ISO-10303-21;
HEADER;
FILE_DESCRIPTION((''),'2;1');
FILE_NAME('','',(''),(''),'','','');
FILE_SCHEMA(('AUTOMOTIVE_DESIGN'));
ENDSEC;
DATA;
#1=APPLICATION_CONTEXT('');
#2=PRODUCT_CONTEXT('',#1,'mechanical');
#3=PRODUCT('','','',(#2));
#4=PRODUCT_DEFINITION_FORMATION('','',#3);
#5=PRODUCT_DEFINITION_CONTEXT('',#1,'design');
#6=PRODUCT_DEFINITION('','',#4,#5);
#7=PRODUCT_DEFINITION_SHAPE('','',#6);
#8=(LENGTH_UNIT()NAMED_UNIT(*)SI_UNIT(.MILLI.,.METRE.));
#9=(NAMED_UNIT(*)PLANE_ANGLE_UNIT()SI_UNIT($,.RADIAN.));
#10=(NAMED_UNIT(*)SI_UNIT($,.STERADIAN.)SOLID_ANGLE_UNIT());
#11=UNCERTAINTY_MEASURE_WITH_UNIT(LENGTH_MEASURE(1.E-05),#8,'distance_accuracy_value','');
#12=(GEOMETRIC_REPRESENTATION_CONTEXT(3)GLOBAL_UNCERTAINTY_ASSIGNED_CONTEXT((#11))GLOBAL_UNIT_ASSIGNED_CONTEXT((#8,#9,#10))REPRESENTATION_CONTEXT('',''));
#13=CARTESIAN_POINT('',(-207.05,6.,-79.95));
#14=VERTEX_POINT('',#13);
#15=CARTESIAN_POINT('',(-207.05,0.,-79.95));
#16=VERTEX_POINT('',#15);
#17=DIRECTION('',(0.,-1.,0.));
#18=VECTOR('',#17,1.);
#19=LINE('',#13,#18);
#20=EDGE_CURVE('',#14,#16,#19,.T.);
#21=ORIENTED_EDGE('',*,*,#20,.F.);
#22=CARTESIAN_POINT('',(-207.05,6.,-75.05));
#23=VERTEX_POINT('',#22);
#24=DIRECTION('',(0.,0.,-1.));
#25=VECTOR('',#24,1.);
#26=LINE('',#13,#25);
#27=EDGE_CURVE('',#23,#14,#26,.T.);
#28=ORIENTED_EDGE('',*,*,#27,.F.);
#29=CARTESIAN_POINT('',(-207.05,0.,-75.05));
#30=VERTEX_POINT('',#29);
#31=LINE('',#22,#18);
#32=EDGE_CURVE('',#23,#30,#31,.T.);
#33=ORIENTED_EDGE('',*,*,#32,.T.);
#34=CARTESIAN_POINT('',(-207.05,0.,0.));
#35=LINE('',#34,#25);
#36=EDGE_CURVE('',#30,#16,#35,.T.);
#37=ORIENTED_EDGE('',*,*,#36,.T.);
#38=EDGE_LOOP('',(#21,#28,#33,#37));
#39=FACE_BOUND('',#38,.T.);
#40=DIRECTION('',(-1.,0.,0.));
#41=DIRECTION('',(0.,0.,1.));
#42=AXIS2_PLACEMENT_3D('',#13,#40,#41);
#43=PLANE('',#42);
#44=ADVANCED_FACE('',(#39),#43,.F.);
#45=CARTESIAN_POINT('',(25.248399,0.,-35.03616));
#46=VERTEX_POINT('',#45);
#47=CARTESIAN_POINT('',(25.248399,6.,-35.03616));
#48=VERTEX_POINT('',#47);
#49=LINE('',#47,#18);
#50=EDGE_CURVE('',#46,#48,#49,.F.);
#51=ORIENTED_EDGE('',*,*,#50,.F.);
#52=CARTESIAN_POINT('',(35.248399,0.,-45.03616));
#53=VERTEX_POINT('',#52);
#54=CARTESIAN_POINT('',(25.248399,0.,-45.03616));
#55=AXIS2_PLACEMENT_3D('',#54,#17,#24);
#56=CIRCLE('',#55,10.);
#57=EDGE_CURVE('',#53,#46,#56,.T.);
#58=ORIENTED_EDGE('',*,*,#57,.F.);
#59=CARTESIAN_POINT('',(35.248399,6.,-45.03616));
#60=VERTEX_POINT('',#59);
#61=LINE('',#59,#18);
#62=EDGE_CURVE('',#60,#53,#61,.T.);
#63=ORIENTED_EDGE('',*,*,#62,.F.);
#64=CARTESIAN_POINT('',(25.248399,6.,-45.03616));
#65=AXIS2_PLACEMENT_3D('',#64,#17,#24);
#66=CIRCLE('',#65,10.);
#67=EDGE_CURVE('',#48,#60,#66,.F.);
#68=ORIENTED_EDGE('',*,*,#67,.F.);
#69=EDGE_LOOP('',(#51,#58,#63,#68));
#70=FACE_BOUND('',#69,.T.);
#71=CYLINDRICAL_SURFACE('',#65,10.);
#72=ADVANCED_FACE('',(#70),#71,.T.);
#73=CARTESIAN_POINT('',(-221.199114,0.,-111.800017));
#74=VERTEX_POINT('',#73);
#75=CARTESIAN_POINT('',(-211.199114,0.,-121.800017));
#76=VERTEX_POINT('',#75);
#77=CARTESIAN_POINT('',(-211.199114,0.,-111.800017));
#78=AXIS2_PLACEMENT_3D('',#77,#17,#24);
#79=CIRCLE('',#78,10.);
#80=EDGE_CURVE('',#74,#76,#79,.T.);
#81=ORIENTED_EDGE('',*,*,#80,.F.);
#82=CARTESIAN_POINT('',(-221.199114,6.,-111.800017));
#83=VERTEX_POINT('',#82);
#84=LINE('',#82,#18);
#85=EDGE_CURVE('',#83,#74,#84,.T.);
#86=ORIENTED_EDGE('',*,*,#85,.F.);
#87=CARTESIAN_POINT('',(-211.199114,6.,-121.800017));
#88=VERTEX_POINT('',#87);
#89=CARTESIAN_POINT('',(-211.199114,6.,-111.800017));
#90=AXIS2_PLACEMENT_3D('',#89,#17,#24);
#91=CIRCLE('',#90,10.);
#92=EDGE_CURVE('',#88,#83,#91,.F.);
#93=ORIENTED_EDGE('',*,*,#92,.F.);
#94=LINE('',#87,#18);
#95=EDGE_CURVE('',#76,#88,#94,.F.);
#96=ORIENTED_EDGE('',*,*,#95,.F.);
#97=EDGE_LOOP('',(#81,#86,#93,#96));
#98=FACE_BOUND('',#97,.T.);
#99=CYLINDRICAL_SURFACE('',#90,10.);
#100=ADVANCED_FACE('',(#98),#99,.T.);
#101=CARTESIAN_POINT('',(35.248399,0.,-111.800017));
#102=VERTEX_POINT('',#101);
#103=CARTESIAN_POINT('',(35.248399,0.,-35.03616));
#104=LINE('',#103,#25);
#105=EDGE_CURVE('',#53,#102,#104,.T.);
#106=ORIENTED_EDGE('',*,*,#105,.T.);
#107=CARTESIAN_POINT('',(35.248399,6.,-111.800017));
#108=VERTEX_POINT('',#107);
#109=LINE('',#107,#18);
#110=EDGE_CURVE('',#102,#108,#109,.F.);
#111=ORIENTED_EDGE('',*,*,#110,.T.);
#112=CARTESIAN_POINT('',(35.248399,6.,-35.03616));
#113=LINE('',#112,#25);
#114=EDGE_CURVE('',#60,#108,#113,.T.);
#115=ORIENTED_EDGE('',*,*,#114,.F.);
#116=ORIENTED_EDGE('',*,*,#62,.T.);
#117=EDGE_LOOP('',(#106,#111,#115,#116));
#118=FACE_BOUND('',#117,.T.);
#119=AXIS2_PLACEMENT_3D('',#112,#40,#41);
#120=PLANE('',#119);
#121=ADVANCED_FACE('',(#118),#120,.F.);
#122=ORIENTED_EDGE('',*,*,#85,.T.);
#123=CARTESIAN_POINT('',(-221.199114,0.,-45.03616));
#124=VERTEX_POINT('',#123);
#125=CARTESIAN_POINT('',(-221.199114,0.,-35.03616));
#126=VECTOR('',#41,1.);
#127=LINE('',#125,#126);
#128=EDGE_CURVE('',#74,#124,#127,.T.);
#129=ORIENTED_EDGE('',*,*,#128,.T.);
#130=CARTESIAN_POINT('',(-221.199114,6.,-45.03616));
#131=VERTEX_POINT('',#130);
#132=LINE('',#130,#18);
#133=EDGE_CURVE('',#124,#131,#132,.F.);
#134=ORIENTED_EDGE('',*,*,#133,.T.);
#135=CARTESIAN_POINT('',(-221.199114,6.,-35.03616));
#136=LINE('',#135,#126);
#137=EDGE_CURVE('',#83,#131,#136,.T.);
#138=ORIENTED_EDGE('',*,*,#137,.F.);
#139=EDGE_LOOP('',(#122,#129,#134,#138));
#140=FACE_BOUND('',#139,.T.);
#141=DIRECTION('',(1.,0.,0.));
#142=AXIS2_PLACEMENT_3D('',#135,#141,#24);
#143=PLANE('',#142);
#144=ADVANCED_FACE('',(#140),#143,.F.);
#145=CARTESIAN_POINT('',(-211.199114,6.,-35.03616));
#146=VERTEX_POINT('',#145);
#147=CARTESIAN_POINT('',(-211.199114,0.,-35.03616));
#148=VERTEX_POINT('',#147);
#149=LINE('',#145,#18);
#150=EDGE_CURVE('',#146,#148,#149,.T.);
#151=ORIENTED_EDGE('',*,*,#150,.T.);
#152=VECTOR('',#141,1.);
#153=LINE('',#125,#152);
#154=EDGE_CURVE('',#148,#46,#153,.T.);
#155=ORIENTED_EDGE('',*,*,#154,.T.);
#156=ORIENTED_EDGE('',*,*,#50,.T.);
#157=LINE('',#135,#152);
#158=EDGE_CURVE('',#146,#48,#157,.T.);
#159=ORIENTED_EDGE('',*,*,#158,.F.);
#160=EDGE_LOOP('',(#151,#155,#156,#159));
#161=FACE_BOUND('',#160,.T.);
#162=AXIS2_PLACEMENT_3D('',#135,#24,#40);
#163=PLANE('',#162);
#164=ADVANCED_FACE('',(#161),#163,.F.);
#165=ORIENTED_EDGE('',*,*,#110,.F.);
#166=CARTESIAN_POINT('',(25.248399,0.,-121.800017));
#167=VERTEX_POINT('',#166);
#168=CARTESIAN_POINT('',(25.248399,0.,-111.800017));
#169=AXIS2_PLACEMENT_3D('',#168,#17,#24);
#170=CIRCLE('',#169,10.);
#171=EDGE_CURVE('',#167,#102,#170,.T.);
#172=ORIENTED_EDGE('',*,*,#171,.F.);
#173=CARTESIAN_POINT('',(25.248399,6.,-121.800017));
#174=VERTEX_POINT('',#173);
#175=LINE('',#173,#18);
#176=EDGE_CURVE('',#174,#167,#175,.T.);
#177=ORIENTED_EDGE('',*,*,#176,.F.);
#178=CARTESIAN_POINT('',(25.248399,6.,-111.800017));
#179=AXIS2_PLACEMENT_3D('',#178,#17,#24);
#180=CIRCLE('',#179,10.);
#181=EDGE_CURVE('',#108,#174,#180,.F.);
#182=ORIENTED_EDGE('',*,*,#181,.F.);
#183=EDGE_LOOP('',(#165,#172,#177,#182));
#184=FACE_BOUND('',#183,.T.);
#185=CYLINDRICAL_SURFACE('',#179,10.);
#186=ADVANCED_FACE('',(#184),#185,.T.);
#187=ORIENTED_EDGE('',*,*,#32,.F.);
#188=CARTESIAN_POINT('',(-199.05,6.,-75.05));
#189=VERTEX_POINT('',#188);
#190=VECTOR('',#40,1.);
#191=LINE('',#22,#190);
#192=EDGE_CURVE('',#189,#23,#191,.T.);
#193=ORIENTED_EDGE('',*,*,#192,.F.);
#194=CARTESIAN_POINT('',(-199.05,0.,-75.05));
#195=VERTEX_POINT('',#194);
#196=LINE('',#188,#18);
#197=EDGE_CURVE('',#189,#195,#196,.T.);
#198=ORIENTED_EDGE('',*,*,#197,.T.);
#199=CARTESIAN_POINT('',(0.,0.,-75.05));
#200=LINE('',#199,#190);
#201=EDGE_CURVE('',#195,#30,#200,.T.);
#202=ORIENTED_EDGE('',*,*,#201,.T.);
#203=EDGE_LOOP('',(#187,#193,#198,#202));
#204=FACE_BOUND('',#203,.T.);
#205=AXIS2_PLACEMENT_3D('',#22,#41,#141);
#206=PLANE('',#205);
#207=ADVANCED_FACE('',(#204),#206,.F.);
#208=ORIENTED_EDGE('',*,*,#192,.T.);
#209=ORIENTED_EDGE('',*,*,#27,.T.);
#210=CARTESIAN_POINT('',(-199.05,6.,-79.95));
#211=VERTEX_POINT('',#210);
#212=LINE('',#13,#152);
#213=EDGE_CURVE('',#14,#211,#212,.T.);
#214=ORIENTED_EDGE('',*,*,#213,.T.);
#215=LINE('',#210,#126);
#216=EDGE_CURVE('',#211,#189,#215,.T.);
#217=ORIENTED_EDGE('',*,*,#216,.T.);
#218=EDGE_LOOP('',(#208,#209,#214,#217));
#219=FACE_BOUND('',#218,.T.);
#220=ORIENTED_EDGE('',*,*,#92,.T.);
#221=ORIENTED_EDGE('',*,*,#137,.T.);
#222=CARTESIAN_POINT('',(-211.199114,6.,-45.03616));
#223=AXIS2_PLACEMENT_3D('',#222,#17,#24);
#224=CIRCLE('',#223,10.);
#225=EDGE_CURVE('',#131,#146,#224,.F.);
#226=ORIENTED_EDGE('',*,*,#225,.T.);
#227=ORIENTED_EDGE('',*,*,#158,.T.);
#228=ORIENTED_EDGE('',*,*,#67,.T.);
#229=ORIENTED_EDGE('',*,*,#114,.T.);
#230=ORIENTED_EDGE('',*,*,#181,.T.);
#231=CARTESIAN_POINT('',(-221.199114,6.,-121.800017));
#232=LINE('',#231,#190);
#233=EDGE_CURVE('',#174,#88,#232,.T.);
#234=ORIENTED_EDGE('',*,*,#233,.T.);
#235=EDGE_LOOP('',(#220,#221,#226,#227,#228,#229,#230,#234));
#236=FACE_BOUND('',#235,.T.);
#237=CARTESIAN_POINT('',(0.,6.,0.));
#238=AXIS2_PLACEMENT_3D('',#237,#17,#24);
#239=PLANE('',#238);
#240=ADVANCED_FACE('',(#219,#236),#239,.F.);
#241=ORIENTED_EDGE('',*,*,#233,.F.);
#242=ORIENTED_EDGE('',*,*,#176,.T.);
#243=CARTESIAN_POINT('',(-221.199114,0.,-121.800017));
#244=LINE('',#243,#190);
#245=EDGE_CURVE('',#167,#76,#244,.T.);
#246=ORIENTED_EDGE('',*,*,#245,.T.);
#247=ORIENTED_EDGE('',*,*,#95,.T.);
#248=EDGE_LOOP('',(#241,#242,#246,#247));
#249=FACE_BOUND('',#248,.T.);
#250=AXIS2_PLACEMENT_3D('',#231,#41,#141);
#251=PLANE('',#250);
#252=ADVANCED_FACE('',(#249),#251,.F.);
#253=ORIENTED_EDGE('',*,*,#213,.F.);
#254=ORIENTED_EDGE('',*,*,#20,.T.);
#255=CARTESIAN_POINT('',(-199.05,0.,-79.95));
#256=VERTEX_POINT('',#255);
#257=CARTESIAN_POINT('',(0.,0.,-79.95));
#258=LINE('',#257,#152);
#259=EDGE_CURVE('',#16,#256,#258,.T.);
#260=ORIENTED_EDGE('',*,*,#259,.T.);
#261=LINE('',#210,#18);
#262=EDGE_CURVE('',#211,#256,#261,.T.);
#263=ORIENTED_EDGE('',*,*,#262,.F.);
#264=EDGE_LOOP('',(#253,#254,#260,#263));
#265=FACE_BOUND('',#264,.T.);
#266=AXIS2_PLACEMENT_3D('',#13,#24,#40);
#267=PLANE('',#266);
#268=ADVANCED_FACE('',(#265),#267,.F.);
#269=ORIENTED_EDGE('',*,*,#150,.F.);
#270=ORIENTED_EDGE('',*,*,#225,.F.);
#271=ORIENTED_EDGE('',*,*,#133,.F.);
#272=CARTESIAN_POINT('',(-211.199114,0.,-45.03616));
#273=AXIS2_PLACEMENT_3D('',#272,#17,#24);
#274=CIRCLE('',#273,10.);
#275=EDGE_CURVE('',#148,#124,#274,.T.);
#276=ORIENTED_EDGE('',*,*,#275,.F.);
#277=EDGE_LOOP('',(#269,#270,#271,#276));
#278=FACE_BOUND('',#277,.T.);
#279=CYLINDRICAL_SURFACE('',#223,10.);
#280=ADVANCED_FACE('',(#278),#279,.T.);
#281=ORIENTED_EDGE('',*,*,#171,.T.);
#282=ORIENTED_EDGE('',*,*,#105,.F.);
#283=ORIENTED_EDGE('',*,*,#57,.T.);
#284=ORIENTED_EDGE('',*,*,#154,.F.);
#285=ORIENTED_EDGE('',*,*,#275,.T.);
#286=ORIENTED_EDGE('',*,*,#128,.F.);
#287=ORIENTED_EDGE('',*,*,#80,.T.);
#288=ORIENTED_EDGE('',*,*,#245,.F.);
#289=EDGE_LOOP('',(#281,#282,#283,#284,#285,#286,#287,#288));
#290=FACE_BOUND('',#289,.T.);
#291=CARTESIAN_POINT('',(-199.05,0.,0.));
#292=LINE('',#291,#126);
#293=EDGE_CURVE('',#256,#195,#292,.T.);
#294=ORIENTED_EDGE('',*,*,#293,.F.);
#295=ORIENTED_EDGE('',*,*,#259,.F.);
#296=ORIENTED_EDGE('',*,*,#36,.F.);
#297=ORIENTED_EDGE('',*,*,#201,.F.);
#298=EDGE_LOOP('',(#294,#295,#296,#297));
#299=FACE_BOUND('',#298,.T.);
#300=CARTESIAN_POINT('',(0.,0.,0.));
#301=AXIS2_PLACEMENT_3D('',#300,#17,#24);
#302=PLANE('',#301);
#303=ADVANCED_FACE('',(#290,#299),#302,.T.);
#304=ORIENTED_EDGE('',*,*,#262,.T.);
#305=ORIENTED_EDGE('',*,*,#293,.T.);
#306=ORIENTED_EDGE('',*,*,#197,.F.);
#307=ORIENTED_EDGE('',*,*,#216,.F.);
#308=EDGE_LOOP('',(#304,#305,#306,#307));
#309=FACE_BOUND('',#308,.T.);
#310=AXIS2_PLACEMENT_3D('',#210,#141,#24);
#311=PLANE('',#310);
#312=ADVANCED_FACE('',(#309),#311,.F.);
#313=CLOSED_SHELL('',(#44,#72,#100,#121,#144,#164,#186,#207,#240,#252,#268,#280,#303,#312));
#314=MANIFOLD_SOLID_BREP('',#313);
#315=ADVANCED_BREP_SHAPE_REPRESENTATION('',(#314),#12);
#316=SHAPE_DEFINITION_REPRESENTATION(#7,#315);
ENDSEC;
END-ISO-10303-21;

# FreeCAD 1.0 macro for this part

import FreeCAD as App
import Part
import Sketcher

V = App.Vector
Q = App.Units.Quantity


def edges_at(feature, points):
    """Names of the edges that pass closest to the given points."""
    edges = feature.Shape.Edges
    near = lambda p: min(range(len(edges)), key=lambda i: edges[i].distToShape(Part.Vertex(*p))[0])
    return sorted({f"Edge{near(p) + 1}" for p in points})

doc = App.newDocument("Part")
params = doc.addObject("Spreadsheet::Sheet", "Params")
for row, (alias, value) in enumerate([
    ("pad1_length", "6 mm"),
    ("sketch2_width", "8 mm"),
    ("sketch2_height", "4.9 mm"),
    ("fillet_radius", "10 mm"),
], start=1):
    params.set(f"A{row}", alias)
    params.set(f"B{row}", "=" + value)
    params.setAlias(f"B{row}", alias)

body = doc.addObject("PartDesign::Body", "Body")

sketch1 = body.newObject("Sketcher::SketchObject", "Sketch")
sketch1.AttachmentSupport = (doc.getObject("XZ_Plane"), [""])
sketch1.MapMode = "FlatFace"
sketch1.addGeometry([
    Part.LineSegment(V(-221.199114, -121.800017, 0), V(-221.199114, -35.03616, 0)),
    Part.LineSegment(V(-221.199114, -35.03616, 0), V(35.248399, -35.03616, 0)),
    Part.LineSegment(V(35.248399, -35.03616, 0), V(35.248399, -121.800017, 0)),
    Part.LineSegment(V(35.248399, -121.800017, 0), V(-221.199114, -121.800017, 0)),
], False)
sketch1.addConstraint([
    Sketcher.Constraint("Coincident", 0, 2, 1, 1),
    Sketcher.Constraint("Coincident", 1, 2, 2, 1),
    Sketcher.Constraint("Coincident", 2, 2, 3, 1),
    Sketcher.Constraint("Coincident", 3, 2, 0, 1),
    Sketcher.Constraint("Vertical", 0),
    Sketcher.Constraint("Horizontal", 1),
    Sketcher.Constraint("Vertical", 2),
    Sketcher.Constraint("Horizontal", 3),
    Sketcher.Constraint("DistanceX", -1, 1, 1, 2, Q("35.248399 mm")),
    Sketcher.Constraint("DistanceX", 1, 1, 1, 2, Q("256.447513 mm")),
    Sketcher.Constraint("DistanceY", 0, 1, 0, 2, Q("86.763856 mm")),
    Sketcher.Constraint("DistanceY", 0, 2, -1, 1, Q("35.03616 mm")),
])
pad1 = body.newObject("PartDesign::Pad", "Pad")
pad1.Profile = sketch1
pad1.setExpression("Length", "Params.pad1_length")
pad1.Reversed = True

sketch2 = body.newObject("Sketcher::SketchObject", "Sketch001")
sketch2.AttachmentSupport = (doc.getObject("XZ_Plane"), [""])
sketch2.MapMode = "FlatFace"
sketch2.addGeometry([
    Part.LineSegment(V(-207.05, -75.05, 0), V(-207.05, -79.95, 0)),
    Part.LineSegment(V(-207.05, -79.95, 0), V(-199.05, -79.95, 0)),
    Part.LineSegment(V(-199.05, -79.95, 0), V(-199.05, -75.05, 0)),
    Part.LineSegment(V(-199.05, -75.05, 0), V(-207.05, -75.05, 0)),
], False)
sketch2.addConstraint([
    Sketcher.Constraint("Coincident", 0, 2, 1, 1),
    Sketcher.Constraint("Coincident", 1, 2, 2, 1),
    Sketcher.Constraint("Coincident", 2, 2, 3, 1),
    Sketcher.Constraint("Coincident", 3, 2, 0, 1),
    Sketcher.Constraint("Vertical", 0),
    Sketcher.Constraint("Horizontal", 1),
    Sketcher.Constraint("Vertical", 2),
    Sketcher.Constraint("Horizontal", 3),
    Sketcher.Constraint("DistanceX", 1, 1, 1, 2, Q("8 mm")),
    Sketcher.Constraint("DistanceY", 0, 2, 0, 1, Q("4.9 mm")),
    Sketcher.Constraint("DistanceX", 0, 2, -1, 1, Q("207.05 mm")),
    Sketcher.Constraint("DistanceY", 0, 2, -1, 1, Q("79.95 mm")),
])
sketch2.setExpression("Constraints[8]", "Params.sketch2_width")
sketch2.setExpression("Constraints[9]", "Params.sketch2_height")
pocket1 = body.newObject("PartDesign::Pocket", "Pocket")
pocket1.Profile = sketch2
pocket1.Type = "ThroughAll"
pocket1.Midplane = True
doc.recompute()

fillet = body.newObject("PartDesign::Fillet", "Fillet")
fillet.Base = (pocket1, edges_at(pocket1, [
    (35.248, 3, -35.036),
    (-221.199, 3, -35.036),
    (-221.199, 3, -121.8),
    (35.248, 3, -121.8),
]))
fillet.setExpression("Radius", "Params.fillet_radius")

doc.recompute()
